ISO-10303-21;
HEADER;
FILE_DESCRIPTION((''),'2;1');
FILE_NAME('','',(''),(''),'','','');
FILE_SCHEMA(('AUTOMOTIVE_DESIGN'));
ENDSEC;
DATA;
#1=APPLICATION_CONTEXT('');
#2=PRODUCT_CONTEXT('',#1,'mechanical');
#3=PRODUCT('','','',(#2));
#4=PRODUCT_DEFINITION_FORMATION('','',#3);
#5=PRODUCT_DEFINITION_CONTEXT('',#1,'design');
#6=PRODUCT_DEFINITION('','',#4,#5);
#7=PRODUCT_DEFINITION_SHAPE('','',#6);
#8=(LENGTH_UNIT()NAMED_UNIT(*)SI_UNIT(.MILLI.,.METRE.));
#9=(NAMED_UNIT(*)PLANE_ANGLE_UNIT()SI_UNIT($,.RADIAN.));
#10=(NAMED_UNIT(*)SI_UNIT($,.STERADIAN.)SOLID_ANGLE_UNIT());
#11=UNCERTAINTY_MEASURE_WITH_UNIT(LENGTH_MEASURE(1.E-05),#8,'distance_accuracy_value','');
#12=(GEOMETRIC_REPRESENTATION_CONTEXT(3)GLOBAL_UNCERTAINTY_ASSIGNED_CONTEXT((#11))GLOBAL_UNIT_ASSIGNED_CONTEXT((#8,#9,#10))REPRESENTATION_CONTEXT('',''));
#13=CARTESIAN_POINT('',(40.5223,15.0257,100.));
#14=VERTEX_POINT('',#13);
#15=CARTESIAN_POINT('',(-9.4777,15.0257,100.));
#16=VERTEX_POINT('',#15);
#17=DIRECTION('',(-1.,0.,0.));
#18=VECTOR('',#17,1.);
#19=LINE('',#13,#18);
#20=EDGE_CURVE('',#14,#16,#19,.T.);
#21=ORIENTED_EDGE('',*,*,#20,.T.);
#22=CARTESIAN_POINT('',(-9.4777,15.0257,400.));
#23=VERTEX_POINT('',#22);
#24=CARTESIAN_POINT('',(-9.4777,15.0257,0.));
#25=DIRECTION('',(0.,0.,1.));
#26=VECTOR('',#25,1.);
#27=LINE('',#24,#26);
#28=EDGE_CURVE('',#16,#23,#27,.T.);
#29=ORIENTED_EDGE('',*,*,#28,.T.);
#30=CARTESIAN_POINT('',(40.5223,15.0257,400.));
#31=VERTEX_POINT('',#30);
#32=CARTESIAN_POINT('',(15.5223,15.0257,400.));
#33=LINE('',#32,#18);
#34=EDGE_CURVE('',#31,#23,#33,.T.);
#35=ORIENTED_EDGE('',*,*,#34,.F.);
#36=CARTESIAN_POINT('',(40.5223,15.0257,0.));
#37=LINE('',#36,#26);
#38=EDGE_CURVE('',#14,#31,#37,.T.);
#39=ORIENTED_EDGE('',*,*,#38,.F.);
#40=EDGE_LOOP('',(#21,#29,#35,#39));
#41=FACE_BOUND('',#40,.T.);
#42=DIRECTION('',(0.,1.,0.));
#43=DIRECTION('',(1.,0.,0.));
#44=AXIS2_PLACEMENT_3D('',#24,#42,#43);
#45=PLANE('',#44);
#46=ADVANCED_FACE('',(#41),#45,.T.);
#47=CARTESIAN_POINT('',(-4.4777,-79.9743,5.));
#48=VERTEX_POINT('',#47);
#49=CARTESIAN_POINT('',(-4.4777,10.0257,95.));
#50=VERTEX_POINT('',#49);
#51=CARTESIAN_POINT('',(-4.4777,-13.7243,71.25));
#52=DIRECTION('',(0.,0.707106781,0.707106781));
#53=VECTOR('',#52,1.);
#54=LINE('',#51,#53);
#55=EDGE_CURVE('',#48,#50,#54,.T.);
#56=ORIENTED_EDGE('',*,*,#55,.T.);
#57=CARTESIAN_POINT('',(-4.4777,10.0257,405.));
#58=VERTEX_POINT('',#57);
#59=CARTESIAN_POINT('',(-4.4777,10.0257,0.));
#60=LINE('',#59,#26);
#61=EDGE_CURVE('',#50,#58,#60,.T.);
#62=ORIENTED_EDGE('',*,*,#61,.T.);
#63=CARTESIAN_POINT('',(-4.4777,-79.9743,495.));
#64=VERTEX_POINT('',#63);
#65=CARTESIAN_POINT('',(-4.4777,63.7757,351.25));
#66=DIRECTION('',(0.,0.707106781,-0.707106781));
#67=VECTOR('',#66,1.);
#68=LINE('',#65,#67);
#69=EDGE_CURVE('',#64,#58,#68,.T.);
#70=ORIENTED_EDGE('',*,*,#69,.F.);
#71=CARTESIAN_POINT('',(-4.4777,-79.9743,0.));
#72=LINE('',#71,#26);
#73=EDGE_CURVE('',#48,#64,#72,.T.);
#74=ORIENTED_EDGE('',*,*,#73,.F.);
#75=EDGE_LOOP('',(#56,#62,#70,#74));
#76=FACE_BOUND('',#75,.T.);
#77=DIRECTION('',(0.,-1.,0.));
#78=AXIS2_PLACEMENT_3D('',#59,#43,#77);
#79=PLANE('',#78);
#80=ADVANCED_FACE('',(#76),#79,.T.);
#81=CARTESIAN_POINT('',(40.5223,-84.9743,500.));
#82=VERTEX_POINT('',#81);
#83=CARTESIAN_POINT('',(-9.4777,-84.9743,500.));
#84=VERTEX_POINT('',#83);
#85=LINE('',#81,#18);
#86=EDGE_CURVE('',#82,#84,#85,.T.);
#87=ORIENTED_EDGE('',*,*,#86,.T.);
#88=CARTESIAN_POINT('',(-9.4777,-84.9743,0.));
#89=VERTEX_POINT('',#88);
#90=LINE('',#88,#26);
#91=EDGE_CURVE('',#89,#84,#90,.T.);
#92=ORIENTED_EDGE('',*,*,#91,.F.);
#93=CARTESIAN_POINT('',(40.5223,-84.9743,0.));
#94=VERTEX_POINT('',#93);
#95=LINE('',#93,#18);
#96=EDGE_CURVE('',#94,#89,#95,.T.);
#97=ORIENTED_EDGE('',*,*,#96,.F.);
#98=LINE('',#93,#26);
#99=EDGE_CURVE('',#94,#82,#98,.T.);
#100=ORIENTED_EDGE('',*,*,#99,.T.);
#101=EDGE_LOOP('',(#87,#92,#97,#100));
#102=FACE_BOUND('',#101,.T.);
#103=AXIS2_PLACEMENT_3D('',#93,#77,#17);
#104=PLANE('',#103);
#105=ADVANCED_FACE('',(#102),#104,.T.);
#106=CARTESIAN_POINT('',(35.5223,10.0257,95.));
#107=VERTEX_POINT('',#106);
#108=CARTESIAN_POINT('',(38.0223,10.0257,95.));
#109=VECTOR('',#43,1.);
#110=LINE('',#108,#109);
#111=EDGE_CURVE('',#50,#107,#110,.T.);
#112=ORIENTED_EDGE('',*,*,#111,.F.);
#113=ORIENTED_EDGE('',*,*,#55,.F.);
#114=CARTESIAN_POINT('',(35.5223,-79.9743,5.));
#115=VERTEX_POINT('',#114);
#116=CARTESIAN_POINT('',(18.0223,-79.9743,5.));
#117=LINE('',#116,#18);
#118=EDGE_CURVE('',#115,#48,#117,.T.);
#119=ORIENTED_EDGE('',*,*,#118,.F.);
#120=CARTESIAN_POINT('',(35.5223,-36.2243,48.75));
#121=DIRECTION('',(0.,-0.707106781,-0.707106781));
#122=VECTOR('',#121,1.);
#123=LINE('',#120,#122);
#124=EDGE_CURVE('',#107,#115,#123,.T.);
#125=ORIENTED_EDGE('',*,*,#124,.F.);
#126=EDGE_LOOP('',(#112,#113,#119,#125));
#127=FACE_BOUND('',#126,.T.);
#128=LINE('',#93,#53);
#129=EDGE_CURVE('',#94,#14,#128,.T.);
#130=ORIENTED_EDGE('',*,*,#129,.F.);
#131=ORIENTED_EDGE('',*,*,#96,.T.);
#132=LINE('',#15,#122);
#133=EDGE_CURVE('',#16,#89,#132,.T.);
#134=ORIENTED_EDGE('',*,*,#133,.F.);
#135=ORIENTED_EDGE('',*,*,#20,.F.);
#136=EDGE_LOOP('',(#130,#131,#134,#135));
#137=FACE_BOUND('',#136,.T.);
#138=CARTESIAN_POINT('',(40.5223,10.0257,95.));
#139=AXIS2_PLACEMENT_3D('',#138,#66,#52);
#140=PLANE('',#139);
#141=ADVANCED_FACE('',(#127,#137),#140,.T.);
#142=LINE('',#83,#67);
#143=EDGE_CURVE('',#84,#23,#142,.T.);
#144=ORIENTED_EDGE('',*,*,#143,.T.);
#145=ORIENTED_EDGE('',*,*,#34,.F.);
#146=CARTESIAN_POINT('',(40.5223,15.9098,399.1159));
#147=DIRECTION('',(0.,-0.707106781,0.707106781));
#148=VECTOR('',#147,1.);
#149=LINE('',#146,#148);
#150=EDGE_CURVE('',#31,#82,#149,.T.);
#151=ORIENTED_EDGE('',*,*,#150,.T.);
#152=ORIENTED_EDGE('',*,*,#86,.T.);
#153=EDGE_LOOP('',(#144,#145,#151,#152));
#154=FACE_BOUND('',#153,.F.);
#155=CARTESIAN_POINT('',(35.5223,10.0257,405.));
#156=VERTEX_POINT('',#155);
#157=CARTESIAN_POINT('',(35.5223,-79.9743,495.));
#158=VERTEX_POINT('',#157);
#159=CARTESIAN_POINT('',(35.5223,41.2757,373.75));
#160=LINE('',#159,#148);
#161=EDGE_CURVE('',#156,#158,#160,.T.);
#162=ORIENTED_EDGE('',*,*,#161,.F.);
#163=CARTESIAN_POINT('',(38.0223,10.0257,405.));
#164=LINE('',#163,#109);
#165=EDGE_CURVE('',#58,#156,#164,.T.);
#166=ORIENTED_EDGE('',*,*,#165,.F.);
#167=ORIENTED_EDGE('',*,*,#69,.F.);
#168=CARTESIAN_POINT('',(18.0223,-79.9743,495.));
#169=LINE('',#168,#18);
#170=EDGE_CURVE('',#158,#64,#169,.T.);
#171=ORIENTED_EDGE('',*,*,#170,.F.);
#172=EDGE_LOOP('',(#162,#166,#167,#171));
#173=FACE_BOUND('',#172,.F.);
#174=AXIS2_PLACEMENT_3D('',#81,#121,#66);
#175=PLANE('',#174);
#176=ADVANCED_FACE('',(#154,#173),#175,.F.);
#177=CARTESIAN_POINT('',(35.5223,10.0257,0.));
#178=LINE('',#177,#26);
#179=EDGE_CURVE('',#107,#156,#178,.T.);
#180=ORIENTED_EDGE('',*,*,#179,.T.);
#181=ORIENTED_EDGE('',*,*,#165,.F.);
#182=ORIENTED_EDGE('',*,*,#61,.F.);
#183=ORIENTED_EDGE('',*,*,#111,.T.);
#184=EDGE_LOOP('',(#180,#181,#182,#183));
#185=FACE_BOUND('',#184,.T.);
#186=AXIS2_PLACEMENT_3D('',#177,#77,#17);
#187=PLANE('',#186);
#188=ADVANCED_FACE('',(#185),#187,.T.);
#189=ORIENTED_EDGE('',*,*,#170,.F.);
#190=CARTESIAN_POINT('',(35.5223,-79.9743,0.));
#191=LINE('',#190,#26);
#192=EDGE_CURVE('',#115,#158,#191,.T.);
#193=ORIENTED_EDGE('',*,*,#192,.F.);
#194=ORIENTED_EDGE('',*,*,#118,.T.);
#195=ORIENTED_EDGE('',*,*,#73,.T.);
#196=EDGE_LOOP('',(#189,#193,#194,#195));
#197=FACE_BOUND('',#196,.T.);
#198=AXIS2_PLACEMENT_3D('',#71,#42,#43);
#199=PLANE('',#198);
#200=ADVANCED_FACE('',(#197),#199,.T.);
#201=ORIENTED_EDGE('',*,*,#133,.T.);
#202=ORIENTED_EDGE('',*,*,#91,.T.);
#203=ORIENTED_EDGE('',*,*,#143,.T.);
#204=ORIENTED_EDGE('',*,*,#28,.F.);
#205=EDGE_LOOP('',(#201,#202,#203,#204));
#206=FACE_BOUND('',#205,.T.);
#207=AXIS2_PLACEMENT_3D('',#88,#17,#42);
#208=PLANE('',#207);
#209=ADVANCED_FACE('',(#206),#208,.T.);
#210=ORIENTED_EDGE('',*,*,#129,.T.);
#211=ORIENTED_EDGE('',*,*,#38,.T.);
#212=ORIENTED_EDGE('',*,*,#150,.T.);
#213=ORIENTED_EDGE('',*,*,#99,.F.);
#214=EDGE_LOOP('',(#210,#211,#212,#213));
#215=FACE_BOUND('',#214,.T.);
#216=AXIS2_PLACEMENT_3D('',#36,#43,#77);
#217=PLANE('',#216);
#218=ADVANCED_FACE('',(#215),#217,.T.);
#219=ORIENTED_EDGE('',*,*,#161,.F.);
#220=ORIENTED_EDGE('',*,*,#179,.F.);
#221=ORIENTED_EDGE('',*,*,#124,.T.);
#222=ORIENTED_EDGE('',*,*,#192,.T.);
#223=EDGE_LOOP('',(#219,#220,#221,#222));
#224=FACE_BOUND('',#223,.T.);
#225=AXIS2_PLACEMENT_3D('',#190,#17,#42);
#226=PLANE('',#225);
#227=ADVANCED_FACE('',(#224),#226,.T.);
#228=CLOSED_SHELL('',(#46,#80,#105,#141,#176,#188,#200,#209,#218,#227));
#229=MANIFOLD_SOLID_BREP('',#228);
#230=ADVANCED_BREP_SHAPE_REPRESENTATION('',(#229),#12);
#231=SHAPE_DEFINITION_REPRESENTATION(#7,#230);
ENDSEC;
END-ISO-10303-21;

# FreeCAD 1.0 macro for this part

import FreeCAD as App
import Part
import Sketcher
from FreeCAD import Vector
Q = App.Units.Quantity

doc = App.newDocument("Part")
body = doc.addObject("PartDesign::Body", "Body")

sketch1 = body.newObject("Sketcher::SketchObject", "Sketch")
sketch1.AttachmentSupport = (doc.getObject("XY_Plane"), [""])
sketch1.MapMode = "FlatFace"
sketch1.addGeometry([
    Part.LineSegment(Vector(41, 15, 0), Vector(-9, 15, 0)),
    Part.LineSegment(Vector(-9, 15, 0), Vector(-9, -85, 0)),
    Part.LineSegment(Vector(-9, -85, 0), Vector(41, -85, 0)),
    Part.LineSegment(Vector(41, -85, 0), Vector(41, 15, 0)),
    Part.LineSegment(Vector(-4, 10, 0), Vector(36, 10, 0)),
    Part.LineSegment(Vector(36, 10, 0), Vector(36, -80, 0)),
    Part.LineSegment(Vector(36, -80, 0), Vector(-4, -80, 0)),
    Part.LineSegment(Vector(-4, -80, 0), Vector(-4, 10, 0)),
], False)
sketch1.addConstraint([
    Sketcher.Constraint("Coincident", 0, 2, 1, 1),
    Sketcher.Constraint("Coincident", 1, 2, 2, 1),
    Sketcher.Constraint("Coincident", 2, 2, 3, 1),
    Sketcher.Constraint("Coincident", 3, 2, 0, 1),
    Sketcher.Constraint("Coincident", 4, 2, 5, 1),
    Sketcher.Constraint("Coincident", 5, 2, 6, 1),
    Sketcher.Constraint("Coincident", 6, 2, 7, 1),
    Sketcher.Constraint("Coincident", 7, 2, 4, 1),
    Sketcher.Constraint("Horizontal", 0),
    Sketcher.Constraint("Vertical", 1),
    Sketcher.Constraint("Horizontal", 2),
    Sketcher.Constraint("Vertical", 3),
    Sketcher.Constraint("Horizontal", 4),
    Sketcher.Constraint("Vertical", 5),
    Sketcher.Constraint("Horizontal", 6),
    Sketcher.Constraint("Vertical", 7),
    Sketcher.Constraint("DistanceY", 1, 2, 1, 1, Q("3.937 in")),
    Sketcher.Constraint("DistanceX", 0, 2, 0, 1, Q("1.9685 in")),
    Sketcher.Constraint("DistanceX", 4, 1, 4, 2, Q("1.5748 in")),
    Sketcher.Constraint("DistanceY", 5, 2, 5, 1, Q("3.5433 in")),
    Sketcher.Constraint("DistanceX", 4, 2, 3, 2, 5.0),
    Sketcher.Constraint("DistanceY", 4, 2, 3, 2, 5.0),
    Sketcher.Constraint("DistanceY", 5, 2, -1, 1, Q("3.1486 in")),
    Sketcher.Constraint("DistanceX", 0, 2, -1, 1, 9.4777),
])
pad1 = body.newObject("PartDesign::Pad", "Pad")
pad1.Profile = sketch1
pad1.Length = 500

sketch2 = body.newObject("Sketcher::SketchObject", "Sketch001")
sketch2.AttachmentSupport = (doc.getObject("YZ_Plane"), [""])
sketch2.MapMode = "FlatFace"
sketch2.AttachmentOffset = App.Placement(Vector(0, 0, 40.5223), App.Rotation())
sketch2.addGeometry([
    Part.LineSegment(Vector(15, 100, 0), Vector(-85, 0, 0)),
    Part.LineSegment(Vector(-85, 0, 0), Vector(15, 0, 0)),
    Part.LineSegment(Vector(15, 0, 0), Vector(15, 100, 0)),
    Part.LineSegment(Vector(-85, 500, 0), Vector(16, 399, 0)),
    Part.LineSegment(Vector(16, 399, 0), Vector(16, 500, 0)),
    Part.LineSegment(Vector(16, 500, 0), Vector(-85, 500, 0)),
], False)
sketch2.addConstraint([
    Sketcher.Constraint("Coincident", 0, 2, 1, 1),
    Sketcher.Constraint("Coincident", 1, 2, 2, 1),
    Sketcher.Constraint("Coincident", 2, 2, 0, 1),
    Sketcher.Constraint("Coincident", 3, 2, 4, 1),
    Sketcher.Constraint("Coincident", 4, 2, 5, 1),
    Sketcher.Constraint("Coincident", 5, 2, 3, 1),
    Sketcher.Constraint("Horizontal", 1),
    Sketcher.Constraint("Vertical", 2),
    Sketcher.Constraint("Vertical", 4),
    Sketcher.Constraint("Horizontal", 5),
    Sketcher.Constraint("PointOnObject", 0, 2, -1),
    Sketcher.Constraint("Perpendicular", 0, 3),
    Sketcher.Constraint("Vertical", 0, 2, 5, 2),
    Sketcher.Constraint("Equal", 1, 2),
    Sketcher.Constraint("DistanceX", 1, 1, 1, 2, Q("3.937 in")),
    Sketcher.Constraint("Distance", 3, Q("5.617 in")),
    Sketcher.Constraint("DistanceX", 0, 2, -1, 1, 84.9743),
    Sketcher.Constraint("DistanceY", -1, 1, 3, 2, 399.116),
])
pocket1 = body.newObject("PartDesign::Pocket", "Pocket")
pocket1.Profile = sketch2
pocket1.Length = Q("1.9685039 in")

doc.recompute()
